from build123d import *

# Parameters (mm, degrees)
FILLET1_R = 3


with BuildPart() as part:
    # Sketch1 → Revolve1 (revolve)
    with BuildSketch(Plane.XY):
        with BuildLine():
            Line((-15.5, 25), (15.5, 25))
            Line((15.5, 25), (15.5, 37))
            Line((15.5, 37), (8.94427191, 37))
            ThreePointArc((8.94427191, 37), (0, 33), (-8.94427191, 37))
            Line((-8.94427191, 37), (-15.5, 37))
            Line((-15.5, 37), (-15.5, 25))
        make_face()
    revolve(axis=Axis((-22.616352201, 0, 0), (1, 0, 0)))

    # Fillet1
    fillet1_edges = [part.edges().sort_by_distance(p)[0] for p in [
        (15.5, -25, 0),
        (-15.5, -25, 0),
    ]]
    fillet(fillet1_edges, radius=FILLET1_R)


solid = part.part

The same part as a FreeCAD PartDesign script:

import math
import FreeCAD as App
import Part
import Sketcher
from FreeCAD import Vector


def edges_at(feature, points):
    """Names of the edges that pass closest to the given points."""
    edges = feature.Shape.Edges
    near = lambda p: min(range(len(edges)), key=lambda i: edges[i].distToShape(Part.Vertex(*p))[0])
    return sorted({f"Edge{near(p) + 1}" for p in points})

doc = App.newDocument("Part")
body = doc.addObject("PartDesign::Body", "Body")

# Sketch on XY plane
sketch1 = doc.addObject("Sketcher::SketchObject", "Sketch")
body.addObject(sketch1)
sketch1.AttachmentSupport = (doc.XY_Plane, [""])
sketch1.MapMode = "FlatFace"
sketch1.addGeometry([
    Part.LineSegment(Vector(-16, 25, 0), Vector(16, 25, 0)),  # 0
    Part.LineSegment(Vector(16, 25, 0), Vector(16, 37, 0)),  # 1
    Part.LineSegment(Vector(16, 37, 0), Vector(9, 37, 0)),  # 2
    Part.ArcOfCircle(Part.Circle(Vector(0, 45, 0), Vector(0, 0, 1), 12), math.radians(-138), math.radians(-42)),  # 3
    Part.LineSegment(Vector(-9, 37, 0), Vector(-16, 37, 0)),  # 4
    Part.LineSegment(Vector(-16, 37, 0), Vector(-16, 25, 0)),  # 5
], False)
sketch1.addConstraint([
    Sketcher.Constraint("Coincident", 0, 2, 1, 1),
    Sketcher.Constraint("Coincident", 1, 2, 2, 1),
    Sketcher.Constraint("Coincident", 2, 2, 3, 2),
    Sketcher.Constraint("Coincident", 3, 1, 4, 1),
    Sketcher.Constraint("Coincident", 4, 2, 5, 1),
    Sketcher.Constraint("Coincident", 5, 2, 0, 1),
    Sketcher.Constraint("Horizontal", 0),
    Sketcher.Constraint("Vertical", 1),
    Sketcher.Constraint("Horizontal", 2),
    Sketcher.Constraint("Horizontal", 4),
    Sketcher.Constraint("Vertical", 5),
    Sketcher.Constraint("Symmetric", 2, 2, 3, 1, -2),
    Sketcher.Constraint("Equal", 2, 4),
    Sketcher.Constraint("Radius", 3, 12.0),
    Sketcher.Constraint("DistanceX", 0, 1, 0, 2, 31.0),
    Sketcher.Constraint("DistanceY", 1, 1, 1, 2, 12.0),
    Sketcher.Constraint("DistanceY", -1, 1, 3, 3, 45.0),
    Sketcher.Constraint("DistanceY", -1, 1, 0, 2, 25.0),
])
revolution = doc.addObject("PartDesign::Revolution", "Revolution")
body.addObject(revolution)
revolution.Profile = sketch1
revolution.ReferenceAxis = (sketch1, ["H_Axis"])
revolution.Angle = 360
doc.recompute()

fillet = doc.addObject("PartDesign::Fillet", "Fillet")
body.addObject(fillet)
fillet.Base = (revolution, edges_at(revolution, [(15.5, -25, 0), (-15.5, -25, 0)]))
fillet.Radius = 3

doc.recompute()
